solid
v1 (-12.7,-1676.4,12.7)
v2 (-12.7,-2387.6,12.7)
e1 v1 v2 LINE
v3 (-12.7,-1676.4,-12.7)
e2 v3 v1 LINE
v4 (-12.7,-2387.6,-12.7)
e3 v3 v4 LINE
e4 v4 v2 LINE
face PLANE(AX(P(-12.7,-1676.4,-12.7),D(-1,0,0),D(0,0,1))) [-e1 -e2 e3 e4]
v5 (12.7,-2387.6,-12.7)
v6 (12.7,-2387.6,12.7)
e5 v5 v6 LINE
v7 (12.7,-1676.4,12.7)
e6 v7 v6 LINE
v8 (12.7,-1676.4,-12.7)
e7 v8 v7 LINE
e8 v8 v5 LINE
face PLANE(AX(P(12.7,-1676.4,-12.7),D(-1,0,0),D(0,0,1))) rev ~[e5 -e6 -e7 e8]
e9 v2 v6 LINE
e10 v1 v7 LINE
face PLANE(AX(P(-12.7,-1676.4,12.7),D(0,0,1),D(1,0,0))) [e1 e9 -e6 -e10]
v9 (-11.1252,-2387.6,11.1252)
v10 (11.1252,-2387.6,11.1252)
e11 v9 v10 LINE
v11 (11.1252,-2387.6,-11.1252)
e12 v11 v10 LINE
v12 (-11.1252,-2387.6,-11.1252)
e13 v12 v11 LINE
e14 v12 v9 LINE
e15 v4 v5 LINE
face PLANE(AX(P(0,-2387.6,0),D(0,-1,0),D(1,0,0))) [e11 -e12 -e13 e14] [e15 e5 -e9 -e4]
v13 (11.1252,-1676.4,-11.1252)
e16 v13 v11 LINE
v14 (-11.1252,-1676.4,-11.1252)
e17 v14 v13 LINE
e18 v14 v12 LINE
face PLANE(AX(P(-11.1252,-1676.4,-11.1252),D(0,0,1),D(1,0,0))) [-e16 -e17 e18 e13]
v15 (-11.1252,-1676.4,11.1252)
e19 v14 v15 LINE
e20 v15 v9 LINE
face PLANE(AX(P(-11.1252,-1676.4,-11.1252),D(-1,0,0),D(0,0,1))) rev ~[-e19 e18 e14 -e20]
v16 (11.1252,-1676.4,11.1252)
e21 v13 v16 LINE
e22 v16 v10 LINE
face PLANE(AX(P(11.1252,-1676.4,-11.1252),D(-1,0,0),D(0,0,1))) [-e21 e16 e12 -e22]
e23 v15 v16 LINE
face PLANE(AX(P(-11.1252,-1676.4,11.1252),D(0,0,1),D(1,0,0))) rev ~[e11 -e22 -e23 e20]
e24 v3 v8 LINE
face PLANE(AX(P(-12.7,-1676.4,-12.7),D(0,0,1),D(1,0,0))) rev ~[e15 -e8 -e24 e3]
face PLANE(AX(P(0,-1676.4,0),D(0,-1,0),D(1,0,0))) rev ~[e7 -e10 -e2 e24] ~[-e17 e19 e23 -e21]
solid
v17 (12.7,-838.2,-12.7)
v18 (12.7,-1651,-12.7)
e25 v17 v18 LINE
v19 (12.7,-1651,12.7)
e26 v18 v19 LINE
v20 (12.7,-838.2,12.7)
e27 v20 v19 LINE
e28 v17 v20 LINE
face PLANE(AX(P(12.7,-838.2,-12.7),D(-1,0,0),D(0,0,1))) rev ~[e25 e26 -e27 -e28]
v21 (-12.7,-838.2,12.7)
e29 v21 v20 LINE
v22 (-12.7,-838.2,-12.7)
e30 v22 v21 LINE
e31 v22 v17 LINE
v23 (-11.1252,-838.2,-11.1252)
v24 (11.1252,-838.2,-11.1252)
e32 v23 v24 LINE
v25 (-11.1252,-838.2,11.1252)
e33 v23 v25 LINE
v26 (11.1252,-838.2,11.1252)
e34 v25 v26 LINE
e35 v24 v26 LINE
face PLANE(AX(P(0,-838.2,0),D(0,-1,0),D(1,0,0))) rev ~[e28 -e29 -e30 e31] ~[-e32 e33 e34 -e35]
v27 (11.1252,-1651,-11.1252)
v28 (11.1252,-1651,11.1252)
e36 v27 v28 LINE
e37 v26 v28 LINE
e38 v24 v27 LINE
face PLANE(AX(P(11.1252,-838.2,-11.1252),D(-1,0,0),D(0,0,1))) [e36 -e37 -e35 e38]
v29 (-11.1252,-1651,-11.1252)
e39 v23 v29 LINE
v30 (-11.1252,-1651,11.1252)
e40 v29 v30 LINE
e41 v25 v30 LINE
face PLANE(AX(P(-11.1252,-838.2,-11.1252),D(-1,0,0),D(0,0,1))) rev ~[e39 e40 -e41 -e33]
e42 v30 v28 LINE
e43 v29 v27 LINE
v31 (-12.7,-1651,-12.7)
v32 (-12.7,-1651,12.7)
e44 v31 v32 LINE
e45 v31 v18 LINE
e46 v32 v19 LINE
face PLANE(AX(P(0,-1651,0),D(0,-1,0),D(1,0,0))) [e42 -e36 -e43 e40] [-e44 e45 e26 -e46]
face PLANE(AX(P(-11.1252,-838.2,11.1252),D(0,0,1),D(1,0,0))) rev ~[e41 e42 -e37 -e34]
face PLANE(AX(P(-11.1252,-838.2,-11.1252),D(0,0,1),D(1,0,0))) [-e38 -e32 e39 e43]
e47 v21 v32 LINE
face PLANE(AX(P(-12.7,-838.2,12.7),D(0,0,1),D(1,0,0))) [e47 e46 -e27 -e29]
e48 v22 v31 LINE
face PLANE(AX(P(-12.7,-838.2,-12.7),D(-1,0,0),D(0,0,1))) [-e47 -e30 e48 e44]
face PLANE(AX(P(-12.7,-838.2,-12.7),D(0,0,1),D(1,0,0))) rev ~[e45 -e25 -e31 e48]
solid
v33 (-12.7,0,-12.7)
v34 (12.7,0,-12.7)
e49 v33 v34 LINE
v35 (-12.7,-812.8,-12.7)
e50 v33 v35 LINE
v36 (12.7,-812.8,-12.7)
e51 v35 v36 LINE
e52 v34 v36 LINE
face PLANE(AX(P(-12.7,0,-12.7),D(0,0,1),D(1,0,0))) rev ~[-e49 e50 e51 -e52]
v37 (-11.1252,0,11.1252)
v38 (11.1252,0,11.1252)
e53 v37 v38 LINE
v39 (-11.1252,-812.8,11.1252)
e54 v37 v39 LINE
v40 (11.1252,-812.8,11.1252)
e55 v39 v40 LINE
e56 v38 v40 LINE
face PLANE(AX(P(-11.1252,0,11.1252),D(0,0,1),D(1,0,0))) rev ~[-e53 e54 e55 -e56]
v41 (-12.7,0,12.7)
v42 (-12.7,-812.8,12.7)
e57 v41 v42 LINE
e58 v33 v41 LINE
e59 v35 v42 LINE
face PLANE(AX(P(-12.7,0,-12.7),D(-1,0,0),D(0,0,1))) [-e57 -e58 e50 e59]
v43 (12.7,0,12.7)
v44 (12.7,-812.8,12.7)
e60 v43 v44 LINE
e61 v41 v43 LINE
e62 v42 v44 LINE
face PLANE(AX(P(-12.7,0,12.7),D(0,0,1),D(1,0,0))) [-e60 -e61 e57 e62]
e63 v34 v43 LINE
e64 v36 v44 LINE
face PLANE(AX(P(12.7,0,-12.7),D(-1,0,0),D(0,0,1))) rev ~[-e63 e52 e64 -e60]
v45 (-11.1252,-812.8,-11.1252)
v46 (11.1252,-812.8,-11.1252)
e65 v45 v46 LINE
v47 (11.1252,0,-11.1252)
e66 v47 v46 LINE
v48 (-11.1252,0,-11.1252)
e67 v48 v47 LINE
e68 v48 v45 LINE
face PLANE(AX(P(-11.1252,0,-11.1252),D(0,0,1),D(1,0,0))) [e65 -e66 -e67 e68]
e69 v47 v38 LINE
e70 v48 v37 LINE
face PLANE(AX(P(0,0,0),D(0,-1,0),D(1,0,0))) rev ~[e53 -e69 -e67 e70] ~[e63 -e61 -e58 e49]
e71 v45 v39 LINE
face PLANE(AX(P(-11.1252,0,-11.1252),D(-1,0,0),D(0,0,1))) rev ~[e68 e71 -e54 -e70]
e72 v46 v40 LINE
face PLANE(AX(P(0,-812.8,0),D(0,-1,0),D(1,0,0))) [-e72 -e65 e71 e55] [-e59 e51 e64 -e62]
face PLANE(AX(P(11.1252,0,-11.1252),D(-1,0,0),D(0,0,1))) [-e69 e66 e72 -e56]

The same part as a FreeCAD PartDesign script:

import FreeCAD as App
import Part
import Sketcher

V = App.Vector
Q = App.Units.Quantity


def add_polygon(sketch, points):
    """Adds a closed chain of lines whose ends are joined by coincident constraints."""
    first, n = sketch.GeometryCount, len(points)
    for a, b in zip(points, points[1:] + points[:1]):
        sketch.addGeometry(Part.LineSegment(App.Vector(*a, 0), App.Vector(*b, 0)), False)
    for i in range(n):
        sketch.addConstraint(Sketcher.Constraint("Coincident", first + i, 2, first + (i + 1) % n, 1))

doc = App.newDocument("Part")
body = doc.addObject("PartDesign::Body", "Body")

sketch1 = body.newObject("Sketcher::SketchObject", "Sketch")
sketch1.AttachmentSupport = (doc.getObject("XZ_Plane"), [""])
sketch1.MapMode = "FlatFace"
add_polygon(sketch1, [(-13, 13), (-13, -13), (13, -13), (13, 13)])
add_polygon(sketch1, [(11, -11), (-11, -11), (-11, 11), (11, 11)])
sketch1.addConstraint(Sketcher.Constraint("Vertical", 0))
sketch1.addConstraint(Sketcher.Constraint("Horizontal", 1))
sketch1.addConstraint(Sketcher.Constraint("Vertical", 2))
sketch1.addConstraint(Sketcher.Constraint("Horizontal", 3))
sketch1.addConstraint(Sketcher.Constraint("Horizontal", 4))
sketch1.addConstraint(Sketcher.Constraint("Vertical", 5))
sketch1.addConstraint(Sketcher.Constraint("Horizontal", 6))
sketch1.addConstraint(Sketcher.Constraint("Vertical", 7))
sketch1.addConstraint(Sketcher.Constraint("Symmetric", 0, 2, 2, 2, -1, 1))
sketch1.addConstraint(Sketcher.Constraint("Symmetric", 4, 2, 6, 2, -1, 1))
sketch1.addConstraint(Sketcher.Constraint("Equal", 3, 0))
sketch1.addConstraint(Sketcher.Constraint("Equal", 6, 5))
sketch1.addConstraint(Sketcher.Constraint("DistanceX", 1, 1, 1, 2, Q("1 in")))
sketch1.addConstraint(Sketcher.Constraint("DistanceX", 4, 2, 4, 1, Q("0.876 in")))
pad1 = body.newObject("PartDesign::Pad", "Pad")
pad1.Profile = sketch1
pad1.Length = Q("32 in")
body2 = doc.addObject("PartDesign::Body", "Body001")

sketch2 = body2.newObject("Sketcher::SketchObject", "Sketch001")
sketch2.AttachmentSupport = (doc.getObject("XZ_Plane001"), [""])
sketch2.MapMode = "FlatFace"
sketch2.AttachmentOffset = App.Placement(V(0, 0, 33 * 25.4), App.Rotation())
add_polygon(sketch2, [(-13, 13), (-13, -13), (13, -13), (13, 13)])
add_polygon(sketch2, [(11, -11), (-11, -11), (-11, 11), (11, 11)])
sketch2.addConstraint(Sketcher.Constraint("Vertical", 0))
sketch2.addConstraint(Sketcher.Constraint("Horizontal", 1))
sketch2.addConstraint(Sketcher.Constraint("Vertical", 2))
sketch2.addConstraint(Sketcher.Constraint("Horizontal", 3))
sketch2.addConstraint(Sketcher.Constraint("Horizontal", 4))
sketch2.addConstraint(Sketcher.Constraint("Vertical", 5))
sketch2.addConstraint(Sketcher.Constraint("Horizontal", 6))
sketch2.addConstraint(Sketcher.Constraint("Vertical", 7))
sketch2.addConstraint(Sketcher.Constraint("Symmetric", 0, 2, 2, 2, -1, 1))
sketch2.addConstraint(Sketcher.Constraint("Symmetric", 4, 2, 6, 2, -1, 1))
sketch2.addConstraint(Sketcher.Constraint("Equal", 3, 0))
sketch2.addConstraint(Sketcher.Constraint("Equal", 6, 5))
sketch2.addConstraint(Sketcher.Constraint("DistanceX", 1, 1, 1, 2, Q("1 in")))
sketch2.addConstraint(Sketcher.Constraint("DistanceX", 4, 2, 4, 1, Q("0.876 in")))
pad2 = body2.newObject("PartDesign::Pad", "Pad001")
pad2.Profile = sketch2
pad2.Length = Q("32 in")
body3 = doc.addObject("PartDesign::Body", "Body002")

sketch3 = body3.newObject("Sketcher::SketchObject", "Sketch002")
sketch3.AttachmentSupport = (doc.getObject("XZ_Plane002"), [""])
sketch3.MapMode = "FlatFace"
sketch3.AttachmentOffset = App.Placement(V(0, 0, 66 * 25.4), App.Rotation())
add_polygon(sketch3, [(-13, 13), (-13, -13), (13, -13), (13, 13)])
add_polygon(sketch3, [(11, -11), (-11, -11), (-11, 11), (11, 11)])
sketch3.addConstraint(Sketcher.Constraint("Vertical", 0))
sketch3.addConstraint(Sketcher.Constraint("Horizontal", 1))
sketch3.addConstraint(Sketcher.Constraint("Vertical", 2))
sketch3.addConstraint(Sketcher.Constraint("Horizontal", 3))
sketch3.addConstraint(Sketcher.Constraint("Horizontal", 4))
sketch3.addConstraint(Sketcher.Constraint("Vertical", 5))
sketch3.addConstraint(Sketcher.Constraint("Horizontal", 6))
sketch3.addConstraint(Sketcher.Constraint("Vertical", 7))
sketch3.addConstraint(Sketcher.Constraint("Symmetric", 0, 2, 2, 2, -1, 1))
sketch3.addConstraint(Sketcher.Constraint("Symmetric", 4, 2, 6, 2, -1, 1))
sketch3.addConstraint(Sketcher.Constraint("Equal", 3, 0))
sketch3.addConstraint(Sketcher.Constraint("Equal", 6, 5))
sketch3.addConstraint(Sketcher.Constraint("DistanceX", 1, 1, 1, 2, Q("1 in")))
sketch3.addConstraint(Sketcher.Constraint("DistanceX", 4, 2, 4, 1, Q("0.876 in")))
pad3 = body3.newObject("PartDesign::Pad", "Pad002")
pad3.Profile = sketch3
pad3.Length = Q("28 in")

doc.recompute()
